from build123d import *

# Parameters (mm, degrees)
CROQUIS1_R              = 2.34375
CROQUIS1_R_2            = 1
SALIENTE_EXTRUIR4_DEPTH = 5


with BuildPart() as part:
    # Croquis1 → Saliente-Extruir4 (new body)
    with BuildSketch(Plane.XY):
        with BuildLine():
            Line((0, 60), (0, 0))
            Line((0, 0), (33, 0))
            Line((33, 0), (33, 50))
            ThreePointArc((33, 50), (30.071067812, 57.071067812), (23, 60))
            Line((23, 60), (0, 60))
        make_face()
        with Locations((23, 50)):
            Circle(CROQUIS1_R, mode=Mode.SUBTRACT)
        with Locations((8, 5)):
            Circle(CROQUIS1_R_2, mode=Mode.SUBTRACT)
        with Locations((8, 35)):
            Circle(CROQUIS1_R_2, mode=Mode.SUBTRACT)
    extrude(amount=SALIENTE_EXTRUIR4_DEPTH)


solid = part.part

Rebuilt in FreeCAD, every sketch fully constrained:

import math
import FreeCAD as App
import Part
import Sketcher
from FreeCAD import Vector

doc = App.newDocument("Part")
body = doc.addObject("PartDesign::Body", "Body")

# Sketch on XY plane
sketch1 = doc.addObject("Sketcher::SketchObject", "Sketch")
body.addObject(sketch1)
sketch1.AttachmentSupport = (doc.XY_Plane, [""])
sketch1.MapMode = "FlatFace"
sketch1.addGeometry(Part.LineSegment(Vector(0, 60, 0), Vector(0, 0, 0)), False)
sketch1.addGeometry(Part.LineSegment(Vector(0, 0, 0), Vector(33, 0, 0)), False)
sketch1.addGeometry(Part.LineSegment(Vector(33, 0, 0), Vector(33, 50, 0)), False)
sketch1.addGeometry(Part.ArcOfCircle(Part.Circle(Vector(23, 50, 0), Vector(0, 0, 1), 10), math.radians(0), math.radians(90)), False)
sketch1.addGeometry(Part.LineSegment(Vector(23, 60, 0), Vector(0, 60, 0)), False)
sketch1.addGeometry(Part.Circle(Vector(8, 5, 0), Vector(0, 0, 1), 1), False)
sketch1.addGeometry(Part.Circle(Vector(8, 35, 0), Vector(0, 0, 1), 1), False)
sketch1.addGeometry(Part.Circle(Vector(23, 50, 0), Vector(0, 0, 1), 2.3), False)
sketch1.addConstraint(Sketcher.Constraint("Coincident", 0, 2, 1, 1))
sketch1.addConstraint(Sketcher.Constraint("Coincident", 1, 2, 2, 1))
sketch1.addConstraint(Sketcher.Constraint("Tangent", 2, 2, 3, 1))
sketch1.addConstraint(Sketcher.Constraint("Tangent", 3, 2, 4, 1))
sketch1.addConstraint(Sketcher.Constraint("Coincident", 4, 2, 0, 1))
sketch1.addConstraint(Sketcher.Constraint("Vertical", 0))
sketch1.addConstraint(Sketcher.Constraint("Horizontal", 1))
sketch1.addConstraint(Sketcher.Constraint("Vertical", 2))
sketch1.addConstraint(Sketcher.Constraint("Horizontal", 4))
sketch1.addConstraint(Sketcher.Constraint("Coincident", 0, 2, -1, 1))
sketch1.addConstraint(Sketcher.Constraint("Coincident", 7, 3, 3, 3))
sketch1.addConstraint(Sketcher.Constraint("Equal", 5, 6))
sketch1.addConstraint(Sketcher.Constraint("Vertical", 5, 3, 6, 3))
sketch1.addConstraint(Sketcher.Constraint("Diameter", 5, 2.0))
sketch1.addConstraint(Sketcher.Constraint("Radius", 3, 10.0))
sketch1.addConstraint(Sketcher.Constraint("DistanceX", 1, 1, 1, 2, 33.0))
sketch1.addConstraint(Sketcher.Constraint("DistanceY", 0, 2, 0, 1, 60.0))
sketch1.addConstraint(Sketcher.Constraint("DistanceX", -1, 1, 5, 3, 8.0))
sketch1.addConstraint(Sketcher.Constraint("DistanceY", -1, 1, 5, 3, 5.0))
sketch1.addConstraint(Sketcher.Constraint("DistanceY", -1, 1, 6, 3, 35.0))
sketch1.addConstraint(Sketcher.Constraint("Diameter", 7, 4.6875))
pad1 = doc.addObject("PartDesign::Pad", "Pad")
body.addObject(pad1)
pad1.Profile = sketch1
pad1.Length = 5

doc.recompute()
